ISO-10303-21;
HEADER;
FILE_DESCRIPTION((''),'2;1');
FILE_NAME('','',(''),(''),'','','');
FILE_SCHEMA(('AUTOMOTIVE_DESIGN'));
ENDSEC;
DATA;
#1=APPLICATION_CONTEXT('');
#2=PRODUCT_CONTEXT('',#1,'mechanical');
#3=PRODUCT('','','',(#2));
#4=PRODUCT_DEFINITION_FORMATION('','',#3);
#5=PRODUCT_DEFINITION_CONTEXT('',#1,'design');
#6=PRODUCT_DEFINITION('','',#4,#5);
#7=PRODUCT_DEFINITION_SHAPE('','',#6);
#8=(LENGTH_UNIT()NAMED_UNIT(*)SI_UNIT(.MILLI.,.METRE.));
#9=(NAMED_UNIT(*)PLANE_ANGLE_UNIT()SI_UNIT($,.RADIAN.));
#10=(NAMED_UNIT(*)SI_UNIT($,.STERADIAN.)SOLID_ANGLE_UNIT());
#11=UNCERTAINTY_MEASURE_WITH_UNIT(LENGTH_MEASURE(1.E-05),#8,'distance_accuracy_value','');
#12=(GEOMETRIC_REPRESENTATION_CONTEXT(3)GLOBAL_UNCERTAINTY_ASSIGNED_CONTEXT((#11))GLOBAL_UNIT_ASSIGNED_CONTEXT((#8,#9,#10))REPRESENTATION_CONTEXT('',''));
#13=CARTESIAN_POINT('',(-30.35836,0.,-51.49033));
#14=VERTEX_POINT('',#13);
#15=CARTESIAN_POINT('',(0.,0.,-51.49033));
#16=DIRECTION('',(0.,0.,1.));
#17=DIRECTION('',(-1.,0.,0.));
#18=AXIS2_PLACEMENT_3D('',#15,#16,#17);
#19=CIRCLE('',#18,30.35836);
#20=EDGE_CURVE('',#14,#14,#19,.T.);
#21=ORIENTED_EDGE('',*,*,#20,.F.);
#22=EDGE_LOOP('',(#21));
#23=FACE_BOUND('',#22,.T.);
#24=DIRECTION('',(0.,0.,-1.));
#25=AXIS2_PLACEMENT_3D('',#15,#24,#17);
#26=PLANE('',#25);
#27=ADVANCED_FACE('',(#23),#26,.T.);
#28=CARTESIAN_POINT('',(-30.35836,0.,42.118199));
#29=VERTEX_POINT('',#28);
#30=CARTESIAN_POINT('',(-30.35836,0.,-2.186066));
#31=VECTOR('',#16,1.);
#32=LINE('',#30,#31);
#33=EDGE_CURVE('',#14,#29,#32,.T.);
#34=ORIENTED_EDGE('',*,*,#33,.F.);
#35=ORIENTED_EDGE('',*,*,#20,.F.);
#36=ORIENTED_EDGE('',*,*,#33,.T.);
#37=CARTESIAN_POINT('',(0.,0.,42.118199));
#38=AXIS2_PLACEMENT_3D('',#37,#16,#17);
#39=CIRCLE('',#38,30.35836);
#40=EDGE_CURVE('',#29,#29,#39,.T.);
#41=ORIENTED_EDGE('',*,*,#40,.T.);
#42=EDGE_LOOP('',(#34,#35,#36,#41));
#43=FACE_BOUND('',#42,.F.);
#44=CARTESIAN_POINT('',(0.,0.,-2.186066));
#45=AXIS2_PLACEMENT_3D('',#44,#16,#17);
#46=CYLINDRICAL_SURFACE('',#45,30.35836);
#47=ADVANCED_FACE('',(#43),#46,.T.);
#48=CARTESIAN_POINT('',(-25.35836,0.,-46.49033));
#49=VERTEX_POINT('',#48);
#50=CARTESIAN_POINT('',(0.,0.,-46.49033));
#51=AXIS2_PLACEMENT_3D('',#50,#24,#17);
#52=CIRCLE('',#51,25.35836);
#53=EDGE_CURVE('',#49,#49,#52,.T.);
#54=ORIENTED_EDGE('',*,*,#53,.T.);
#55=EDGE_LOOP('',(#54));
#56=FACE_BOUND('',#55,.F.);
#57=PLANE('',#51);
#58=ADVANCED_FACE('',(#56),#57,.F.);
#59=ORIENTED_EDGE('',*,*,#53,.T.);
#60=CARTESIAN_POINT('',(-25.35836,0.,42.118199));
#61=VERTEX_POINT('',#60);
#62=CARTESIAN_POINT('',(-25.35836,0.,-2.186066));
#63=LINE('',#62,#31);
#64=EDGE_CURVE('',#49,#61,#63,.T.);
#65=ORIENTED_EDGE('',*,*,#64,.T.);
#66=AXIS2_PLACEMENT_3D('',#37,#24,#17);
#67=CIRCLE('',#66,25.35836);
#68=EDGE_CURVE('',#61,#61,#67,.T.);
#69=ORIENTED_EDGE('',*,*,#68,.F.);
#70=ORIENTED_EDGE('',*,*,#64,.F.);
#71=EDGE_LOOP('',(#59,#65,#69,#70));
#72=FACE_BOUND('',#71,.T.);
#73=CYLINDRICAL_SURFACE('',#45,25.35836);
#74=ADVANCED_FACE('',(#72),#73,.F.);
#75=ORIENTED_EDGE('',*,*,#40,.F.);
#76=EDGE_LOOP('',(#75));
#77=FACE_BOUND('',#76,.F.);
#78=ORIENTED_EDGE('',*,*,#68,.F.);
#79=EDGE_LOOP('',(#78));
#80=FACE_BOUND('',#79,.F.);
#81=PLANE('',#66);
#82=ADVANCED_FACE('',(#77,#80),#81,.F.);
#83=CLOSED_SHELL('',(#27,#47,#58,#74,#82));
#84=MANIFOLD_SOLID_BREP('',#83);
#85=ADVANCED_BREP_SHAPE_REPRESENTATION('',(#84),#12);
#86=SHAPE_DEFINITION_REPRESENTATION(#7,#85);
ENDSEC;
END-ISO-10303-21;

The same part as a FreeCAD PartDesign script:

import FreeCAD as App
import Part
import Sketcher
from FreeCAD import Vector
Q = App.Units.Quantity


def faces_at(feature, points):
    """Names of the faces that lie closest to the given points."""
    faces = feature.Shape.Faces
    near = lambda p: min(range(len(faces)), key=lambda i: faces[i].distToShape(Part.Vertex(*p))[0])
    return sorted({f"Face{near(p) + 1}" for p in points})

doc = App.newDocument("Part")
body = doc.addObject("PartDesign::Body", "Body")

sketch1 = doc.addObject("Sketcher::SketchObject", "Sketch")
body.addObject(sketch1)
sketch1.AttachmentSupport = (doc.XZ_Plane, [""])
sketch1.MapMode = "FlatFace"
sketch1.addGeometry(Part.LineSegment(Vector(-25.35836, 42.118199, 0), Vector(-25.35836, -46.49033, 0)), False)
sketch1.addGeometry(Part.LineSegment(Vector(-25.35836, -46.49033, 0), Vector(0, -46.49033, 0)), False)
sketch1.addGeometry(Part.LineSegment(Vector(0, -46.49033, 0), Vector(0, 42.118199, 0)), False)
sketch1.addGeometry(Part.LineSegment(Vector(0, 42.118199, 0), Vector(-25.35836, 42.118199, 0)), False)
sketch1.addConstraint(Sketcher.Constraint("Coincident", 0, 2, 1, 1))
sketch1.addConstraint(Sketcher.Constraint("Coincident", 1, 2, 2, 1))
sketch1.addConstraint(Sketcher.Constraint("Coincident", 2, 2, 3, 1))
sketch1.addConstraint(Sketcher.Constraint("Coincident", 3, 2, 0, 1))
sketch1.addConstraint(Sketcher.Constraint("Vertical", 0))
sketch1.addConstraint(Sketcher.Constraint("Horizontal", 1))
sketch1.addConstraint(Sketcher.Constraint("Vertical", 2))
sketch1.addConstraint(Sketcher.Constraint("Horizontal", 3))
sketch1.addConstraint(Sketcher.Constraint("PointOnObject", 1, 2, -2))
sketch1.addConstraint(Sketcher.Constraint("DistanceX", 1, 1, 1, 2, Q("25.35836 mm")))
sketch1.addConstraint(Sketcher.Constraint("DistanceY", 0, 2, 0, 1, Q("88.608529 mm")))
sketch1.addConstraint(Sketcher.Constraint("DistanceY", -1, 1, 2, 2, Q("42.118199 mm")))
revolution = doc.addObject("PartDesign::Revolution", "Revolution")
body.addObject(revolution)
revolution.Profile = sketch1
revolution.ReferenceAxis = (sketch1, ["V_Axis"])
revolution.Angle = 360
doc.recompute()

thickness = doc.addObject("PartDesign::Thickness", "Thickness")
body.addObject(thickness)
thickness.Base = (revolution, faces_at(revolution, [(0, 0, 42.118)]))
thickness.Value = 5
thickness.Reversed = False
thickness.Join = "Intersection"

doc.recompute()
